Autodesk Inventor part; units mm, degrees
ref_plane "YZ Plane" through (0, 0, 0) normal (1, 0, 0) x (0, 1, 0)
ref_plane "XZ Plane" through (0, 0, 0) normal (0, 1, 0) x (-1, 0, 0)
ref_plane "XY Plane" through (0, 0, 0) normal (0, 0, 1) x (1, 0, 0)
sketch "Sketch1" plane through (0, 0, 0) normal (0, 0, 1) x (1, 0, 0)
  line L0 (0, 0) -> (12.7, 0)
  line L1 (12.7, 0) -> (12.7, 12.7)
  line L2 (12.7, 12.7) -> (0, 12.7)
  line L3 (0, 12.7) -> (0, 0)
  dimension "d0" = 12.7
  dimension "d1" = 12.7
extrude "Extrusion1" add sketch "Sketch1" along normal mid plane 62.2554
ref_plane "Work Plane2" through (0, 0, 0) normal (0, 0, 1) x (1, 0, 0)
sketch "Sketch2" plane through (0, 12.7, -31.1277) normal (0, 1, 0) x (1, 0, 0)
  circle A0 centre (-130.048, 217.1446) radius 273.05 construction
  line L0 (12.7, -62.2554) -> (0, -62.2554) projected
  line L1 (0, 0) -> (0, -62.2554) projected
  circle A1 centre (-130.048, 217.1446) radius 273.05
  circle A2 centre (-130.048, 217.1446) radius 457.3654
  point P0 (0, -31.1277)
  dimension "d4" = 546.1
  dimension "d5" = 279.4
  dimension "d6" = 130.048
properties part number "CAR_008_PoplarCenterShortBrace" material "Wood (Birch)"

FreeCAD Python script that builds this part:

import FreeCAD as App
import Part
import Sketcher
from FreeCAD import Vector
Q = App.Units.Quantity

doc = App.newDocument("Part")
body = doc.addObject("PartDesign::Body", "Body")

sketch1 = body.newObject("Sketcher::SketchObject", "Sketch")
sketch1.AttachmentSupport = (doc.getObject("XY_Plane"), [""])
sketch1.MapMode = "FlatFace"
sketch1.addGeometry([
    Part.LineSegment(Vector(0, 13, 0), Vector(0, 0, 0)),
    Part.LineSegment(Vector(0, 0, 0), Vector(13, 0, 0)),
    Part.LineSegment(Vector(13, 0, 0), Vector(13, 13, 0)),
    Part.LineSegment(Vector(13, 13, 0), Vector(0, 13, 0)),
], False)
sketch1.addConstraint([
    Sketcher.Constraint("Coincident", 0, 2, 1, 1),
    Sketcher.Constraint("Coincident", 1, 2, 2, 1),
    Sketcher.Constraint("Coincident", 2, 2, 3, 1),
    Sketcher.Constraint("Coincident", 3, 2, 0, 1),
    Sketcher.Constraint("Vertical", 0),
    Sketcher.Constraint("Horizontal", 1),
    Sketcher.Constraint("Vertical", 2),
    Sketcher.Constraint("Horizontal", 3),
    Sketcher.Constraint("Coincident", 0, 2, -1, 1),
    Sketcher.Constraint("Equal", 3, 0),
    Sketcher.Constraint("DistanceX", 1, 1, 1, 2, Q("0.5 in")),
])
pad1 = body.newObject("PartDesign::Pad", "Pad")
pad1.Profile = sketch1
pad1.Length = Q("2.451 in")
pad1.Midplane = True

doc.recompute()
